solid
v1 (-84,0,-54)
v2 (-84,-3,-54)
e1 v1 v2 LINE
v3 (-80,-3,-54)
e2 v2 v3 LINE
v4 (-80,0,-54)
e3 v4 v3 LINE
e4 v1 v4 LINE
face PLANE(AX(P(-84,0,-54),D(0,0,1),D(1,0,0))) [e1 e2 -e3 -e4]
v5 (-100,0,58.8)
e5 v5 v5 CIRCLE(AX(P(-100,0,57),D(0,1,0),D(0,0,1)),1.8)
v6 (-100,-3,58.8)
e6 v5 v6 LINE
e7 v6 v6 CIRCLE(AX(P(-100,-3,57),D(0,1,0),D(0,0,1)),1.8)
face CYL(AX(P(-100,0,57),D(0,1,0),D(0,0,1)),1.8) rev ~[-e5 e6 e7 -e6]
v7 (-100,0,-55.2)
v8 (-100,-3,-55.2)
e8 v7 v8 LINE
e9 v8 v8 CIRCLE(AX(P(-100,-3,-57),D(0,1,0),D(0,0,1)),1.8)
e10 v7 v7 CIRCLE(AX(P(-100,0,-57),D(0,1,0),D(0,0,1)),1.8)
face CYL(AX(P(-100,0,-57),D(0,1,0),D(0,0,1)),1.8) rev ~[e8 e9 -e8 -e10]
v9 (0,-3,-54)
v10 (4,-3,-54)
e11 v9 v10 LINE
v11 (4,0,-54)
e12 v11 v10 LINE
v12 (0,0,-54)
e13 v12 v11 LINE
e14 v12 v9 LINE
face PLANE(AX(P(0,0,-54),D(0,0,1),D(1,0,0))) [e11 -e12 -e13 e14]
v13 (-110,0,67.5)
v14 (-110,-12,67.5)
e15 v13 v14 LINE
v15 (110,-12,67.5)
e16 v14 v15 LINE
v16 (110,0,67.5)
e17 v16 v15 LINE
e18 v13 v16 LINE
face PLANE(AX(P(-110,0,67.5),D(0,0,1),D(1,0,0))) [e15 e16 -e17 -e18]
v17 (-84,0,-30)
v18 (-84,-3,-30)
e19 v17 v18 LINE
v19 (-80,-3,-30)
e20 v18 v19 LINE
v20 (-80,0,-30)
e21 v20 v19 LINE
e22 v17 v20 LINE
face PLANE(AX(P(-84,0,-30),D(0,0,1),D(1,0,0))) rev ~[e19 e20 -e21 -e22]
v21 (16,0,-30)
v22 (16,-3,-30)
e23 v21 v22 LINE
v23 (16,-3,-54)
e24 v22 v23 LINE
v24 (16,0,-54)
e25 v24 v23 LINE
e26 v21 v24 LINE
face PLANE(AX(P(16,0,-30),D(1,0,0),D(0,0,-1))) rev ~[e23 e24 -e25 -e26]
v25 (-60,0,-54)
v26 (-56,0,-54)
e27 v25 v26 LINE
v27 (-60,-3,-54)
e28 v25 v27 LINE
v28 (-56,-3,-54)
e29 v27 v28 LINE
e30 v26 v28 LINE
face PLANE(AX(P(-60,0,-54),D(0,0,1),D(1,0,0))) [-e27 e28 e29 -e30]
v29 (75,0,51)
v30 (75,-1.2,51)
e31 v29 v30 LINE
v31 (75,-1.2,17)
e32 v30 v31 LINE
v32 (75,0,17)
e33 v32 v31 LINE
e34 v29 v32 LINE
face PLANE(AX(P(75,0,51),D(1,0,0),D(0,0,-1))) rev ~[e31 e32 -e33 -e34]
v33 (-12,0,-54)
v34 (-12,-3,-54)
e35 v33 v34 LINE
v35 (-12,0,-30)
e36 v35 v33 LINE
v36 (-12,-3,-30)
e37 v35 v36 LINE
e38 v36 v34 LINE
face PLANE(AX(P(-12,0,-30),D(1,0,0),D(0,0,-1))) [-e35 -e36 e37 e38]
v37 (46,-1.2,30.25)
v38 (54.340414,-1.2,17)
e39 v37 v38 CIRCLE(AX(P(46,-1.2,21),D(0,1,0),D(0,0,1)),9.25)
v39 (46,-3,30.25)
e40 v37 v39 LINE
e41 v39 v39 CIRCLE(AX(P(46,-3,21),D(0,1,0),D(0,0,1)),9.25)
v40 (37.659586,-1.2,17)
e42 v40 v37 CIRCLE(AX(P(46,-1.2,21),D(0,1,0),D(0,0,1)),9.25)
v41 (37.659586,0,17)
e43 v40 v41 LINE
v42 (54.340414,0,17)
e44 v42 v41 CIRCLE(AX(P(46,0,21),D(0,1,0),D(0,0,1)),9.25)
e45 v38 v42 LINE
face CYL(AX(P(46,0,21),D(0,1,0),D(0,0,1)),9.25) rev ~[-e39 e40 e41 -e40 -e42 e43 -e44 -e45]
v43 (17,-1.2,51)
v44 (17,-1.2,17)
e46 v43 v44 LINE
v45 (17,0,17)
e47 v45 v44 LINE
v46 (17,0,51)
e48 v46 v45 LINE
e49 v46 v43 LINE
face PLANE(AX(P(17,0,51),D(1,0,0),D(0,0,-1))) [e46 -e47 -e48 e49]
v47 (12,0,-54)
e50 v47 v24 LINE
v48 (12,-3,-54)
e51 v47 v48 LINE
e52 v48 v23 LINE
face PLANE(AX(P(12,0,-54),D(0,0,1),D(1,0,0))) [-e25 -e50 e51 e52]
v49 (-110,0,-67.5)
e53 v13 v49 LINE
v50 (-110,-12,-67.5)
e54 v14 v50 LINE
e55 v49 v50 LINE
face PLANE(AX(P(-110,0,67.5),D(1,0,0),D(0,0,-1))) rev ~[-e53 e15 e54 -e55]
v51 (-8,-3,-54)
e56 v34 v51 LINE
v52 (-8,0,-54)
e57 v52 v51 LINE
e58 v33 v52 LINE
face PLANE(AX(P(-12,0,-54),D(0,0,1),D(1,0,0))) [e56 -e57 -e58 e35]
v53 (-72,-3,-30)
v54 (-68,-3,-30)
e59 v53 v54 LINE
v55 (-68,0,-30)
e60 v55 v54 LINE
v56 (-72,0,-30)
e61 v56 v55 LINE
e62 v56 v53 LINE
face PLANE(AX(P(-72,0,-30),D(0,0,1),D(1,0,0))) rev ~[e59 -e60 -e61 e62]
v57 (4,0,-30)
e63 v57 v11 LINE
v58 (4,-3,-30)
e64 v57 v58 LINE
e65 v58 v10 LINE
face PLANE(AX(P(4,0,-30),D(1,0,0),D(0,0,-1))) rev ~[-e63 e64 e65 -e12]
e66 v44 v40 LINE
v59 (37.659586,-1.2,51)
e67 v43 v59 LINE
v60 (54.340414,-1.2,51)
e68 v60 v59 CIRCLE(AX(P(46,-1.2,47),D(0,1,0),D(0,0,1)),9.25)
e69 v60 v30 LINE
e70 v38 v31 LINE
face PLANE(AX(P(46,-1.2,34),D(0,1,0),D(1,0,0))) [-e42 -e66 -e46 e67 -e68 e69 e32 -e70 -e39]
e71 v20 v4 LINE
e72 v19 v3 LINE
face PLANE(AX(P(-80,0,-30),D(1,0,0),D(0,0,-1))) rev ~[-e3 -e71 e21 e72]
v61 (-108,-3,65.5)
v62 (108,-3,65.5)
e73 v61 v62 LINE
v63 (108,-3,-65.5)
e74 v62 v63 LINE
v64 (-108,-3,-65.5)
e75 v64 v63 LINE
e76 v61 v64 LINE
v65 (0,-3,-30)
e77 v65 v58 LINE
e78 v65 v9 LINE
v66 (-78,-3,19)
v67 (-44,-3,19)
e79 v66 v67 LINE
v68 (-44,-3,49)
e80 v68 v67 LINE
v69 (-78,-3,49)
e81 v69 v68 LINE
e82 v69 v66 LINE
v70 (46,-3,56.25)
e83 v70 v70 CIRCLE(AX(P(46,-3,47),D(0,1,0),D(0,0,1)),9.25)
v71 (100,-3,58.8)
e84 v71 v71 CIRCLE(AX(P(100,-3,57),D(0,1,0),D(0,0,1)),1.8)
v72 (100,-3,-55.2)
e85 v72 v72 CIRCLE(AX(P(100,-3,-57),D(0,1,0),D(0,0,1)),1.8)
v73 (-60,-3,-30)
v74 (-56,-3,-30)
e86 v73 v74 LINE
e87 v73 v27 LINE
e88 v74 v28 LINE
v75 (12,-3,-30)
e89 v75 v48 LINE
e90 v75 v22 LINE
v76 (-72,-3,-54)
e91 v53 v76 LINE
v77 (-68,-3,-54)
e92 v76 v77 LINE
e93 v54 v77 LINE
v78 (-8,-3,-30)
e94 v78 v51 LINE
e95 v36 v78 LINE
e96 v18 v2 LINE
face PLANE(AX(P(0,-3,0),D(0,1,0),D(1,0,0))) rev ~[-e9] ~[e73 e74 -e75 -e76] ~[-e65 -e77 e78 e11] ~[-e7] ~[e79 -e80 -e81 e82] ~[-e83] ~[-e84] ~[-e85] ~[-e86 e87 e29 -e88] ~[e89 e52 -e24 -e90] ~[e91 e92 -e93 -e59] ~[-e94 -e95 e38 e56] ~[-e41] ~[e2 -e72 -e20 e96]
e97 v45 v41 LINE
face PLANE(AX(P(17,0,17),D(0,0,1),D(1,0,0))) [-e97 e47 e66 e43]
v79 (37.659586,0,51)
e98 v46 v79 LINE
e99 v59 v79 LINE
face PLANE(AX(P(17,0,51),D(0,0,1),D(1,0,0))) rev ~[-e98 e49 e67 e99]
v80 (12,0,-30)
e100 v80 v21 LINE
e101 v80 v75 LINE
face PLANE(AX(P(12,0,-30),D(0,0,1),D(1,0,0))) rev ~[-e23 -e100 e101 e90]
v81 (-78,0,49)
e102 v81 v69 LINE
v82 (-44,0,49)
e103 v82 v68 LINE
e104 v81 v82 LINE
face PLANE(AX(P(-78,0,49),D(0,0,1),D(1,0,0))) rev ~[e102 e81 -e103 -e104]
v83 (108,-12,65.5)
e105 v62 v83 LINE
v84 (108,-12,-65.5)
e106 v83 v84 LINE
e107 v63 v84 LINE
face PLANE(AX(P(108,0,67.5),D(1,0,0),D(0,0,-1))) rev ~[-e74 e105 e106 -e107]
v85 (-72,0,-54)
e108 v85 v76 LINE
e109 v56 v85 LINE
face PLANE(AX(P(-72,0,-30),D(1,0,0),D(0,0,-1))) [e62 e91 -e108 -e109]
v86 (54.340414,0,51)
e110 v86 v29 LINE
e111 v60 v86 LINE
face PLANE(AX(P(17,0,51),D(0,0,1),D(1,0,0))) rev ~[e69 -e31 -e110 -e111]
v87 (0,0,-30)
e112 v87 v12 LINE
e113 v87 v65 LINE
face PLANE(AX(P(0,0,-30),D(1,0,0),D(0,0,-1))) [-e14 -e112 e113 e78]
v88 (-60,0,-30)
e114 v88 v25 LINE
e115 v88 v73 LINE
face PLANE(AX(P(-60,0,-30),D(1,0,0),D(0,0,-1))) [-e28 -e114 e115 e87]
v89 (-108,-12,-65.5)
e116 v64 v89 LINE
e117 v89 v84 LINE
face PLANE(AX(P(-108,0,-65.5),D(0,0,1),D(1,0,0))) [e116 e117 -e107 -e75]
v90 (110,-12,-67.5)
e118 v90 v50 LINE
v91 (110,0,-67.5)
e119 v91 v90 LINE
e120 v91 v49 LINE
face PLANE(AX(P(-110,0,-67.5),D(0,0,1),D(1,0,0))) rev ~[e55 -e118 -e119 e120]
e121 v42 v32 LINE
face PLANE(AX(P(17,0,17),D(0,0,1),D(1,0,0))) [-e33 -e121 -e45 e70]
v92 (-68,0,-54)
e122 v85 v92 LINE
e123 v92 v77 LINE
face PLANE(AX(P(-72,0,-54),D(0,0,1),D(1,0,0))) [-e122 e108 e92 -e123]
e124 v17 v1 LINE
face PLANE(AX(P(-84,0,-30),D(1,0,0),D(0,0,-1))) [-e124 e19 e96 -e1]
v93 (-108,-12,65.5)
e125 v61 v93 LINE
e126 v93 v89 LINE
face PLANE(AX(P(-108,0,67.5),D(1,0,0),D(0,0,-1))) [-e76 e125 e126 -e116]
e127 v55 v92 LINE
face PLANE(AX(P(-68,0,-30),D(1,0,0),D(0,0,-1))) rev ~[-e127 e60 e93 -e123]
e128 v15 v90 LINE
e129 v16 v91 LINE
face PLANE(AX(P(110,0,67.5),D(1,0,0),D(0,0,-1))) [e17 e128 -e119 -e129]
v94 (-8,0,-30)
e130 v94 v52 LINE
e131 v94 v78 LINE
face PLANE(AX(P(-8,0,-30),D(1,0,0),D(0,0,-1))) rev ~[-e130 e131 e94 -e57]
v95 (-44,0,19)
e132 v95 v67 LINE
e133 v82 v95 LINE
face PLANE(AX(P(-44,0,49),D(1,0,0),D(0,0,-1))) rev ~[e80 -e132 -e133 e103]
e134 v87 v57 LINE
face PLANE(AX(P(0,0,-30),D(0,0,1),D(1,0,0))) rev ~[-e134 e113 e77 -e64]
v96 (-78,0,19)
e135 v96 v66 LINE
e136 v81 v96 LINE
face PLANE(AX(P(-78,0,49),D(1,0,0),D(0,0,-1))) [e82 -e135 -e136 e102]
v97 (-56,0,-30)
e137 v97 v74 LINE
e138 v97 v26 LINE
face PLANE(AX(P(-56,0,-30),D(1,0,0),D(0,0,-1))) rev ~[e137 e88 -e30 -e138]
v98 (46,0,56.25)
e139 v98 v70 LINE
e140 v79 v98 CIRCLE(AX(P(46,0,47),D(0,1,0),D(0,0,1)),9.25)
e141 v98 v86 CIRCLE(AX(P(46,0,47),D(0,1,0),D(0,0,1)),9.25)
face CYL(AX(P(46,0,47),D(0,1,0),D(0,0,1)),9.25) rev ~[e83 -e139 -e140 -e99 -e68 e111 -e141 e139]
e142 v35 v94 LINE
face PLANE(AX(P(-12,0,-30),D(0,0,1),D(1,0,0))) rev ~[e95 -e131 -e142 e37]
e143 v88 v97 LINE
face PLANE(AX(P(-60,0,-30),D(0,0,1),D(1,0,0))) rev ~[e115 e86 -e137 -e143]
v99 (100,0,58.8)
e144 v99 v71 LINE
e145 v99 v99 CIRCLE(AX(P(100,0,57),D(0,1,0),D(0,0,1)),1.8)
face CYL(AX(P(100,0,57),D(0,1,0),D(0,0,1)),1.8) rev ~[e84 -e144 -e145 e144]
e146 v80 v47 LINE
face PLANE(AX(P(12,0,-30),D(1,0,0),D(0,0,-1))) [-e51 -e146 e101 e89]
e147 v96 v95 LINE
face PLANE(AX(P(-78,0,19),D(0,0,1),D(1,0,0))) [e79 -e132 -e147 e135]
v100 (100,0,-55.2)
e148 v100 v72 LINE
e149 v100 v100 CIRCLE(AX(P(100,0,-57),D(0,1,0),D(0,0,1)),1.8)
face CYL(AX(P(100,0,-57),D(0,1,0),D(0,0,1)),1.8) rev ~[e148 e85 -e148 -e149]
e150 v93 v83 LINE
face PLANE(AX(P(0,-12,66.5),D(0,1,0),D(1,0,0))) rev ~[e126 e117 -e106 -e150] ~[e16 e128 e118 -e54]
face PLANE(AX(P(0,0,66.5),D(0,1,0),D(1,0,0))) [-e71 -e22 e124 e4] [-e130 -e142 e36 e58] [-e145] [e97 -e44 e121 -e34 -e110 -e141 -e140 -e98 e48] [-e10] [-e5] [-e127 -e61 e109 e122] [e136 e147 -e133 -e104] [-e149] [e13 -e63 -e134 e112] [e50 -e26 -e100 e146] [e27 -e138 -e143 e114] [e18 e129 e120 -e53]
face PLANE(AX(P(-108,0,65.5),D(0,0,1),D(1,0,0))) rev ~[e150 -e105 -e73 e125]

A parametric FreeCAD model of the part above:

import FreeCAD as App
import Part
import Sketcher
Q = App.Units.Quantity

doc = App.newDocument("Part")
body = doc.addObject("PartDesign::Body", "Body")

sketch1 = doc.addObject("Sketcher::SketchObject", "Sketch")
body.addObject(sketch1)
sketch1.AttachmentSupport = (doc.XZ_Plane, [""])
sketch1.MapMode = "FlatFace"
sketch1.addGeometry(Part.LineSegment(App.Vector(-110, -68, 0), App.Vector(-110, 68, 0)), False)
sketch1.addGeometry(Part.LineSegment(App.Vector(-110, 68, 0), App.Vector(110, 68, 0)), False)
sketch1.addGeometry(Part.LineSegment(App.Vector(110, 68, 0), App.Vector(110, -68, 0)), False)
sketch1.addGeometry(Part.LineSegment(App.Vector(110, -68, 0), App.Vector(-110, -68, 0)), False)
sketch1.addConstraint(Sketcher.Constraint("Coincident", 0, 2, 1, 1))
sketch1.addConstraint(Sketcher.Constraint("Coincident", 1, 2, 2, 1))
sketch1.addConstraint(Sketcher.Constraint("Coincident", 2, 2, 3, 1))
sketch1.addConstraint(Sketcher.Constraint("Coincident", 3, 2, 0, 1))
sketch1.addConstraint(Sketcher.Constraint("Vertical", 0))
sketch1.addConstraint(Sketcher.Constraint("Horizontal", 1))
sketch1.addConstraint(Sketcher.Constraint("Vertical", 2))
sketch1.addConstraint(Sketcher.Constraint("Horizontal", 3))
sketch1.addConstraint(Sketcher.Constraint("Symmetric", 0, 2, 2, 2, -1, 1))
sketch1.addConstraint(Sketcher.Constraint("DistanceX", 1, 1, 1, 2, Q("220 mm")))
sketch1.addConstraint(Sketcher.Constraint("DistanceY", 0, 1, 0, 2, Q("135 mm")))
pad1 = doc.addObject("PartDesign::Pad", "Pad")
body.addObject(pad1)
pad1.Profile = sketch1
pad1.Length = 3

sketch2 = doc.addObject("Sketcher::SketchObject", "Sketch001")
body.addObject(sketch2)
sketch2.AttachmentSupport = (doc.XZ_Plane, [""])
sketch2.MapMode = "FlatFace"
sketch2.addGeometry(Part.LineSegment(App.Vector(-108, -67.5, 0), App.Vector(-108, -65.5, 0)), False)
sketch2.addGeometry(Part.LineSegment(App.Vector(-108, -65.5, 0), App.Vector(108, -65.5, 0)), False)
sketch2.addGeometry(Part.LineSegment(App.Vector(108, -65.5, 0), App.Vector(108, -67.5, 0)), False)
sketch2.addGeometry(Part.LineSegment(App.Vector(108, -67.5, 0), App.Vector(-108, -67.5, 0)), False)
sketch2.addConstraint(Sketcher.Constraint("Coincident", 0, 2, 1, 1))
sketch2.addConstraint(Sketcher.Constraint("Coincident", 1, 2, 2, 1))
sketch2.addConstraint(Sketcher.Constraint("Coincident", 2, 2, 3, 1))
sketch2.addConstraint(Sketcher.Constraint("Coincident", 3, 2, 0, 1))
sketch2.addConstraint(Sketcher.Constraint("Vertical", 0))
sketch2.addConstraint(Sketcher.Constraint("Horizontal", 1))
sketch2.addConstraint(Sketcher.Constraint("Vertical", 2))
sketch2.addConstraint(Sketcher.Constraint("Horizontal", 3))
sketch2.addConstraint(Sketcher.Constraint("DistanceX", 1, 1, 1, 2, Q("216 mm")))
sketch2.addConstraint(Sketcher.Constraint("DistanceY", 0, 1, 0, 2, Q("2 mm")))
sketch2.addConstraint(Sketcher.Constraint("DistanceX", 0, 2, -1, 1, Q("108 mm")))
sketch2.addConstraint(Sketcher.Constraint("DistanceY", 0, 2, -1, 1, Q("65.5 mm")))
pad2 = doc.addObject("PartDesign::Pad", "Pad001")
body.addObject(pad2)
pad2.Profile = sketch2
pad2.Length = 12

sketch3 = doc.addObject("Sketcher::SketchObject", "Sketch002")
body.addObject(sketch3)
sketch3.AttachmentSupport = (doc.XZ_Plane, [""])
sketch3.MapMode = "FlatFace"
sketch3.addGeometry(Part.LineSegment(App.Vector(-108, 65.5, 0), App.Vector(-108, 67.5, 0)), False)
sketch3.addGeometry(Part.LineSegment(App.Vector(-108, 67.5, 0), App.Vector(108, 67.5, 0)), False)
sketch3.addGeometry(Part.LineSegment(App.Vector(108, 67.5, 0), App.Vector(108, 65.5, 0)), False)
sketch3.addGeometry(Part.LineSegment(App.Vector(108, 65.5, 0), App.Vector(-108, 65.5, 0)), False)
sketch3.addConstraint(Sketcher.Constraint("Coincident", 0, 2, 1, 1))
sketch3.addConstraint(Sketcher.Constraint("Coincident", 1, 2, 2, 1))
sketch3.addConstraint(Sketcher.Constraint("Coincident", 2, 2, 3, 1))
sketch3.addConstraint(Sketcher.Constraint("Coincident", 3, 2, 0, 1))
sketch3.addConstraint(Sketcher.Constraint("Vertical", 0))
sketch3.addConstraint(Sketcher.Constraint("Horizontal", 1))
sketch3.addConstraint(Sketcher.Constraint("Vertical", 2))
sketch3.addConstraint(Sketcher.Constraint("Horizontal", 3))
sketch3.addConstraint(Sketcher.Constraint("DistanceX", 1, 1, 1, 2, Q("216 mm")))
sketch3.addConstraint(Sketcher.Constraint("DistanceY", 0, 1, 0, 2, Q("2 mm")))
sketch3.addConstraint(Sketcher.Constraint("DistanceX", 0, 2, -1, 1, Q("108 mm")))
sketch3.addConstraint(Sketcher.Constraint("DistanceY", -1, 1, 0, 2, Q("67.5 mm")))
pad3 = doc.addObject("PartDesign::Pad", "Pad002")
body.addObject(pad3)
pad3.Profile = sketch3
pad3.Length = 12

sketch4 = doc.addObject("Sketcher::SketchObject", "Sketch003")
body.addObject(sketch4)
sketch4.AttachmentSupport = (doc.XZ_Plane, [""])
sketch4.MapMode = "FlatFace"
sketch4.addGeometry(Part.LineSegment(App.Vector(-110, -67.5, 0), App.Vector(-110, 67.5, 0)), False)
sketch4.addGeometry(Part.LineSegment(App.Vector(-110, 67.5, 0), App.Vector(-108, 67.5, 0)), False)
sketch4.addGeometry(Part.LineSegment(App.Vector(-108, 67.5, 0), App.Vector(-108, -67.5, 0)), False)
sketch4.addGeometry(Part.LineSegment(App.Vector(-108, -67.5, 0), App.Vector(-110, -67.5, 0)), False)
sketch4.addConstraint(Sketcher.Constraint("Coincident", 0, 2, 1, 1))
sketch4.addConstraint(Sketcher.Constraint("Coincident", 1, 2, 2, 1))
sketch4.addConstraint(Sketcher.Constraint("Coincident", 2, 2, 3, 1))
sketch4.addConstraint(Sketcher.Constraint("Coincident", 3, 2, 0, 1))
sketch4.addConstraint(Sketcher.Constraint("Vertical", 0))
sketch4.addConstraint(Sketcher.Constraint("Horizontal", 1))
sketch4.addConstraint(Sketcher.Constraint("Vertical", 2))
sketch4.addConstraint(Sketcher.Constraint("Horizontal", 3))
sketch4.addConstraint(Sketcher.Constraint("DistanceX", 1, 1, 1, 2, Q("2 mm")))
sketch4.addConstraint(Sketcher.Constraint("DistanceY", 0, 1, 0, 2, Q("135 mm")))
sketch4.addConstraint(Sketcher.Constraint("DistanceX", 0, 2, -1, 1, Q("110 mm")))
sketch4.addConstraint(Sketcher.Constraint("DistanceY", -1, 1, 0, 2, Q("67.5 mm")))
pad4 = doc.addObject("PartDesign::Pad", "Pad003")
body.addObject(pad4)
pad4.Profile = sketch4
pad4.Length = 12

sketch5 = doc.addObject("Sketcher::SketchObject", "Sketch004")
body.addObject(sketch5)
sketch5.AttachmentSupport = (doc.XZ_Plane, [""])
sketch5.MapMode = "FlatFace"
sketch5.addGeometry(Part.LineSegment(App.Vector(108, -67.5, 0), App.Vector(108, 67.5, 0)), False)
sketch5.addGeometry(Part.LineSegment(App.Vector(108, 67.5, 0), App.Vector(110, 67.5, 0)), False)
sketch5.addGeometry(Part.LineSegment(App.Vector(110, 67.5, 0), App.Vector(110, -67.5, 0)), False)
sketch5.addGeometry(Part.LineSegment(App.Vector(110, -67.5, 0), App.Vector(108, -67.5, 0)), False)
sketch5.addConstraint(Sketcher.Constraint("Coincident", 0, 2, 1, 1))
sketch5.addConstraint(Sketcher.Constraint("Coincident", 1, 2, 2, 1))
sketch5.addConstraint(Sketcher.Constraint("Coincident", 2, 2, 3, 1))
sketch5.addConstraint(Sketcher.Constraint("Coincident", 3, 2, 0, 1))
sketch5.addConstraint(Sketcher.Constraint("Vertical", 0))
sketch5.addConstraint(Sketcher.Constraint("Horizontal", 1))
sketch5.addConstraint(Sketcher.Constraint("Vertical", 2))
sketch5.addConstraint(Sketcher.Constraint("Horizontal", 3))
sketch5.addConstraint(Sketcher.Constraint("DistanceX", 1, 1, 1, 2, Q("2 mm")))
sketch5.addConstraint(Sketcher.Constraint("DistanceY", 0, 1, 0, 2, Q("135 mm")))
sketch5.addConstraint(Sketcher.Constraint("DistanceX", -1, 1, 0, 2, Q("108 mm")))
sketch5.addConstraint(Sketcher.Constraint("DistanceY", -1, 1, 0, 2, Q("67.5 mm")))
pad5 = doc.addObject("PartDesign::Pad", "Pad004")
body.addObject(pad5)
pad5.Profile = sketch5
pad5.Length = 12

sketch6 = doc.addObject("Sketcher::SketchObject", "Sketch005")
body.addObject(sketch6)
sketch6.AttachmentSupport = (doc.XZ_Plane, [""])
sketch6.MapMode = "FlatFace"
sketch6.addGeometry(Part.Circle(App.Vector(-100, 57, 0), App.Vector(0, 0, 1), 1.8), False)
sketch6.addConstraint(Sketcher.Constraint("Diameter", 0, Q("3.6 mm")))
sketch6.addConstraint(Sketcher.Constraint("DistanceX", 0, 3, -1, 1, Q("100 mm")))
sketch6.addConstraint(Sketcher.Constraint("DistanceY", -1, 1, 0, 3, Q("57 mm")))
pocket1 = doc.addObject("PartDesign::Pocket", "Pocket")
body.addObject(pocket1)
pocket1.Profile = sketch6
pocket1.Length = 16
pocket1.Reversed = True

sketch7 = doc.addObject("Sketcher::SketchObject", "Sketch006")
body.addObject(sketch7)
sketch7.AttachmentSupport = (doc.XZ_Plane, [""])
sketch7.MapMode = "FlatFace"
sketch7.addGeometry(Part.Circle(App.Vector(100, 57, 0), App.Vector(0, 0, 1), 1.8), False)
sketch7.addConstraint(Sketcher.Constraint("Diameter", 0, Q("3.6 mm")))
sketch7.addConstraint(Sketcher.Constraint("DistanceX", -1, 1, 0, 3, Q("100 mm")))
sketch7.addConstraint(Sketcher.Constraint("DistanceY", -1, 1, 0, 3, Q("57 mm")))
pocket2 = doc.addObject("PartDesign::Pocket", "Pocket001")
body.addObject(pocket2)
pocket2.Profile = sketch7
pocket2.Length = 16
pocket2.Reversed = True

sketch8 = doc.addObject("Sketcher::SketchObject", "Sketch007")
body.addObject(sketch8)
sketch8.AttachmentSupport = (doc.XZ_Plane, [""])
sketch8.MapMode = "FlatFace"
sketch8.addGeometry(Part.Circle(App.Vector(-100, -57, 0), App.Vector(0, 0, 1), 1.8), False)
sketch8.addConstraint(Sketcher.Constraint("Diameter", 0, Q("3.6 mm")))
sketch8.addConstraint(Sketcher.Constraint("DistanceX", 0, 3, -1, 1, Q("100 mm")))
sketch8.addConstraint(Sketcher.Constraint("DistanceY", 0, 3, -1, 1, Q("57 mm")))
pocket3 = doc.addObject("PartDesign::Pocket", "Pocket002")
body.addObject(pocket3)
pocket3.Profile = sketch8
pocket3.Length = 16
pocket3.Reversed = True

sketch9 = doc.addObject("Sketcher::SketchObject", "Sketch008")
body.addObject(sketch9)
sketch9.AttachmentSupport = (doc.XZ_Plane, [""])
sketch9.MapMode = "FlatFace"
sketch9.addGeometry(Part.Circle(App.Vector(100, -57, 0), App.Vector(0, 0, 1), 1.8), False)
sketch9.addConstraint(Sketcher.Constraint("Diameter", 0, Q("3.6 mm")))
sketch9.addConstraint(Sketcher.Constraint("DistanceX", -1, 1, 0, 3, Q("100 mm")))
sketch9.addConstraint(Sketcher.Constraint("DistanceY", 0, 3, -1, 1, Q("57 mm")))
pocket4 = doc.addObject("PartDesign::Pocket", "Pocket003")
body.addObject(pocket4)
pocket4.Profile = sketch9
pocket4.Length = 16
pocket4.Reversed = True

sketch10 = doc.addObject("Sketcher::SketchObject", "Sketch009")
body.addObject(sketch10)
sketch10.AttachmentSupport = (doc.XZ_Plane, [""])
sketch10.MapMode = "FlatFace"
sketch10.addGeometry(Part.Circle(App.Vector(-61, 34, 0), App.Vector(0, 0, 1), 9), False)
sketch10.addConstraint(Sketcher.Constraint("Diameter", 0, Q("18 mm")))
sketch10.addConstraint(Sketcher.Constraint("DistanceX", 0, 3, -1, 1, Q("61 mm")))
sketch10.addConstraint(Sketcher.Constraint("DistanceY", -1, 1, 0, 3, Q("34 mm")))
pocket5 = doc.addObject("PartDesign::Pocket", "Pocket004")
body.addObject(pocket5)
pocket5.Profile = sketch10
pocket5.Length = 4
pocket5.Reversed = True

sketch11 = doc.addObject("Sketcher::SketchObject", "Sketch010")
body.addObject(sketch11)
sketch11.AttachmentSupport = (doc.XZ_Plane, [""])
sketch11.MapMode = "FlatFace"
sketch11.addGeometry(Part.LineSegment(App.Vector(-78, 19, 0), App.Vector(-78, 49, 0)), False)
sketch11.addGeometry(Part.LineSegment(App.Vector(-78, 49, 0), App.Vector(-44, 49, 0)), False)
sketch11.addGeometry(Part.LineSegment(App.Vector(-44, 49, 0), App.Vector(-44, 19, 0)), False)
sketch11.addGeometry(Part.LineSegment(App.Vector(-44, 19, 0), App.Vector(-78, 19, 0)), False)
sketch11.addConstraint(Sketcher.Constraint("Coincident", 0, 2, 1, 1))
sketch11.addConstraint(Sketcher.Constraint("Coincident", 1, 2, 2, 1))
sketch11.addConstraint(Sketcher.Constraint("Coincident", 2, 2, 3, 1))
sketch11.addConstraint(Sketcher.Constraint("Coincident", 3, 2, 0, 1))
sketch11.addConstraint(Sketcher.Constraint("Vertical", 0))
sketch11.addConstraint(Sketcher.Constraint("Horizontal", 1))
sketch11.addConstraint(Sketcher.Constraint("Vertical", 2))
sketch11.addConstraint(Sketcher.Constraint("Horizontal", 3))
sketch11.addConstraint(Sketcher.Constraint("DistanceX", 1, 1, 1, 2, Q("34 mm")))
sketch11.addConstraint(Sketcher.Constraint("DistanceY", 0, 1, 0, 2, Q("30 mm")))
sketch11.addConstraint(Sketcher.Constraint("DistanceX", 0, 2, -1, 1, Q("78 mm")))
sketch11.addConstraint(Sketcher.Constraint("DistanceY", -1, 1, 0, 2, Q("49 mm")))
pocket6 = doc.addObject("PartDesign::Pocket", "Pocket005")
body.addObject(pocket6)
pocket6.Profile = sketch11
pocket6.Length = 4
pocket6.Reversed = True

sketch12 = doc.addObject("Sketcher::SketchObject", "Sketch011")
body.addObject(sketch12)
sketch12.AttachmentSupport = (doc.XZ_Plane, [""])
sketch12.MapMode = "FlatFace"
sketch12.addGeometry(Part.Circle(App.Vector(46, 47, 0), App.Vector(0, 0, 1), 9), False)
sketch12.addConstraint(Sketcher.Constraint("Diameter", 0, Q("18.5 mm")))
sketch12.addConstraint(Sketcher.Constraint("DistanceX", -1, 1, 0, 3, Q("46 mm")))
sketch12.addConstraint(Sketcher.Constraint("DistanceY", -1, 1, 0, 3, Q("47 mm")))
pocket7 = doc.addObject("PartDesign::Pocket", "Pocket006")
body.addObject(pocket7)
pocket7.Profile = sketch12
pocket7.Length = 4
pocket7.Reversed = True

sketch13 = doc.addObject("Sketcher::SketchObject", "Sketch012")
body.addObject(sketch13)
sketch13.AttachmentSupport = (doc.XZ_Plane, [""])
sketch13.MapMode = "FlatFace"
sketch13.addGeometry(Part.Circle(App.Vector(46, 21, 0), App.Vector(0, 0, 1), 9), False)
sketch13.addConstraint(Sketcher.Constraint("Diameter", 0, Q("18.5 mm")))
sketch13.addConstraint(Sketcher.Constraint("DistanceX", -1, 1, 0, 3, Q("46 mm")))
sketch13.addConstraint(Sketcher.Constraint("DistanceY", -1, 1, 0, 3, Q("21 mm")))
pocket8 = doc.addObject("PartDesign::Pocket", "Pocket007")
body.addObject(pocket8)
pocket8.Profile = sketch13
pocket8.Length = 4
pocket8.Reversed = True

sketch14 = doc.addObject("Sketcher::SketchObject", "Sketch013")
body.addObject(sketch14)
sketch14.AttachmentSupport = (doc.XZ_Plane, [""])
sketch14.MapMode = "FlatFace"
sketch14.addGeometry(Part.LineSegment(App.Vector(17, 17, 0), App.Vector(17, 51, 0)), False)
sketch14.addGeometry(Part.LineSegment(App.Vector(17, 51, 0), App.Vector(75, 51, 0)), False)
sketch14.addGeometry(Part.LineSegment(App.Vector(75, 51, 0), App.Vector(75, 17, 0)), False)
sketch14.addGeometry(Part.LineSegment(App.Vector(75, 17, 0), App.Vector(17, 17, 0)), False)
sketch14.addConstraint(Sketcher.Constraint("Coincident", 0, 2, 1, 1))
sketch14.addConstraint(Sketcher.Constraint("Coincident", 1, 2, 2, 1))
sketch14.addConstraint(Sketcher.Constraint("Coincident", 2, 2, 3, 1))
sketch14.addConstraint(Sketcher.Constraint("Coincident", 3, 2, 0, 1))
sketch14.addConstraint(Sketcher.Constraint("Vertical", 0))
sketch14.addConstraint(Sketcher.Constraint("Horizontal", 1))
sketch14.addConstraint(Sketcher.Constraint("Vertical", 2))
sketch14.addConstraint(Sketcher.Constraint("Horizontal", 3))
sketch14.addConstraint(Sketcher.Constraint("DistanceX", 1, 1, 1, 2, Q("58 mm")))
sketch14.addConstraint(Sketcher.Constraint("DistanceY", 0, 1, 0, 2, Q("34 mm")))
sketch14.addConstraint(Sketcher.Constraint("DistanceX", -1, 1, 0, 2, Q("17 mm")))
sketch14.addConstraint(Sketcher.Constraint("DistanceY", -1, 1, 0, 2, Q("51 mm")))
pocket9 = doc.addObject("PartDesign::Pocket", "Pocket008")
body.addObject(pocket9)
pocket9.Profile = sketch14
pocket9.Length = 1.2
pocket9.Reversed = True

sketch15 = doc.addObject("Sketcher::SketchObject", "Sketch014")
body.addObject(sketch15)
sketch15.AttachmentSupport = (doc.XZ_Plane, [""])
sketch15.MapMode = "FlatFace"
sketch15.addGeometry(Part.LineSegment(App.Vector(-84, -54, 0), App.Vector(-84, -30, 0)), False)
sketch15.addGeometry(Part.LineSegment(App.Vector(-84, -30, 0), App.Vector(-80, -30, 0)), False)
sketch15.addGeometry(Part.LineSegment(App.Vector(-80, -30, 0), App.Vector(-80, -54, 0)), False)
sketch15.addGeometry(Part.LineSegment(App.Vector(-80, -54, 0), App.Vector(-84, -54, 0)), False)
sketch15.addConstraint(Sketcher.Constraint("Coincident", 0, 2, 1, 1))
sketch15.addConstraint(Sketcher.Constraint("Coincident", 1, 2, 2, 1))
sketch15.addConstraint(Sketcher.Constraint("Coincident", 2, 2, 3, 1))
sketch15.addConstraint(Sketcher.Constraint("Coincident", 3, 2, 0, 1))
sketch15.addConstraint(Sketcher.Constraint("Vertical", 0))
sketch15.addConstraint(Sketcher.Constraint("Horizontal", 1))
sketch15.addConstraint(Sketcher.Constraint("Vertical", 2))
sketch15.addConstraint(Sketcher.Constraint("Horizontal", 3))
sketch15.addConstraint(Sketcher.Constraint("DistanceX", 1, 1, 1, 2, Q("4 mm")))
sketch15.addConstraint(Sketcher.Constraint("DistanceY", 0, 1, 0, 2, Q("24 mm")))
sketch15.addConstraint(Sketcher.Constraint("DistanceX", 0, 2, -1, 1, Q("84 mm")))
sketch15.addConstraint(Sketcher.Constraint("DistanceY", 0, 2, -1, 1, Q("30 mm")))
pocket10 = doc.addObject("PartDesign::Pocket", "Pocket009")
body.addObject(pocket10)
pocket10.Profile = sketch15
pocket10.Length = 4
pocket10.Reversed = True

sketch16 = doc.addObject("Sketcher::SketchObject", "Sketch015")
body.addObject(sketch16)
sketch16.AttachmentSupport = (doc.XZ_Plane, [""])
sketch16.MapMode = "FlatFace"
sketch16.addGeometry(Part.LineSegment(App.Vector(-72, -54, 0), App.Vector(-72, -30, 0)), False)
sketch16.addGeometry(Part.LineSegment(App.Vector(-72, -30, 0), App.Vector(-68, -30, 0)), False)
sketch16.addGeometry(Part.LineSegment(App.Vector(-68, -30, 0), App.Vector(-68, -54, 0)), False)
sketch16.addGeometry(Part.LineSegment(App.Vector(-68, -54, 0), App.Vector(-72, -54, 0)), False)
sketch16.addConstraint(Sketcher.Constraint("Coincident", 0, 2, 1, 1))
sketch16.addConstraint(Sketcher.Constraint("Coincident", 1, 2, 2, 1))
sketch16.addConstraint(Sketcher.Constraint("Coincident", 2, 2, 3, 1))
sketch16.addConstraint(Sketcher.Constraint("Coincident", 3, 2, 0, 1))
sketch16.addConstraint(Sketcher.Constraint("Vertical", 0))
sketch16.addConstraint(Sketcher.Constraint("Horizontal", 1))
sketch16.addConstraint(Sketcher.Constraint("Vertical", 2))
sketch16.addConstraint(Sketcher.Constraint("Horizontal", 3))
sketch16.addConstraint(Sketcher.Constraint("DistanceX", 1, 1, 1, 2, Q("4 mm")))
sketch16.addConstraint(Sketcher.Constraint("DistanceY", 0, 1, 0, 2, Q("24 mm")))
sketch16.addConstraint(Sketcher.Constraint("DistanceX", 0, 2, -1, 1, Q("72 mm")))
sketch16.addConstraint(Sketcher.Constraint("DistanceY", 0, 2, -1, 1, Q("30 mm")))
pocket11 = doc.addObject("PartDesign::Pocket", "Pocket010")
body.addObject(pocket11)
pocket11.Profile = sketch16
pocket11.Length = 4
pocket11.Reversed = True

sketch17 = doc.addObject("Sketcher::SketchObject", "Sketch016")
body.addObject(sketch17)
sketch17.AttachmentSupport = (doc.XZ_Plane, [""])
sketch17.MapMode = "FlatFace"
sketch17.addGeometry(Part.LineSegment(App.Vector(-60, -54, 0), App.Vector(-60, -30, 0)), False)
sketch17.addGeometry(Part.LineSegment(App.Vector(-60, -30, 0), App.Vector(-56, -30, 0)), False)
sketch17.addGeometry(Part.LineSegment(App.Vector(-56, -30, 0), App.Vector(-56, -54, 0)), False)
sketch17.addGeometry(Part.LineSegment(App.Vector(-56, -54, 0), App.Vector(-60, -54, 0)), False)
sketch17.addConstraint(Sketcher.Constraint("Coincident", 0, 2, 1, 1))
sketch17.addConstraint(Sketcher.Constraint("Coincident", 1, 2, 2, 1))
sketch17.addConstraint(Sketcher.Constraint("Coincident", 2, 2, 3, 1))
sketch17.addConstraint(Sketcher.Constraint("Coincident", 3, 2, 0, 1))
sketch17.addConstraint(Sketcher.Constraint("Vertical", 0))
sketch17.addConstraint(Sketcher.Constraint("Horizontal", 1))
sketch17.addConstraint(Sketcher.Constraint("Vertical", 2))
sketch17.addConstraint(Sketcher.Constraint("Horizontal", 3))
sketch17.addConstraint(Sketcher.Constraint("DistanceX", 1, 1, 1, 2, Q("4 mm")))
sketch17.addConstraint(Sketcher.Constraint("DistanceY", 0, 1, 0, 2, Q("24 mm")))
sketch17.addConstraint(Sketcher.Constraint("DistanceX", 0, 2, -1, 1, Q("60 mm")))
sketch17.addConstraint(Sketcher.Constraint("DistanceY", 0, 2, -1, 1, Q("30 mm")))
pocket12 = doc.addObject("PartDesign::Pocket", "Pocket011")
body.addObject(pocket12)
pocket12.Profile = sketch17
pocket12.Length = 4
pocket12.Reversed = True

sketch18 = doc.addObject("Sketcher::SketchObject", "Sketch017")
body.addObject(sketch18)
sketch18.AttachmentSupport = (doc.XZ_Plane, [""])
sketch18.MapMode = "FlatFace"
sketch18.addGeometry(Part.LineSegment(App.Vector(-12, -54, 0), App.Vector(-12, -30, 0)), False)
sketch18.addGeometry(Part.LineSegment(App.Vector(-12, -30, 0), App.Vector(-8, -30, 0)), False)
sketch18.addGeometry(Part.LineSegment(App.Vector(-8, -30, 0), App.Vector(-8, -54, 0)), False)
sketch18.addGeometry(Part.LineSegment(App.Vector(-8, -54, 0), App.Vector(-12, -54, 0)), False)
sketch18.addConstraint(Sketcher.Constraint("Coincident", 0, 2, 1, 1))
sketch18.addConstraint(Sketcher.Constraint("Coincident", 1, 2, 2, 1))
sketch18.addConstraint(Sketcher.Constraint("Coincident", 2, 2, 3, 1))
sketch18.addConstraint(Sketcher.Constraint("Coincident", 3, 2, 0, 1))
sketch18.addConstraint(Sketcher.Constraint("Vertical", 0))
sketch18.addConstraint(Sketcher.Constraint("Horizontal", 1))
sketch18.addConstraint(Sketcher.Constraint("Vertical", 2))
sketch18.addConstraint(Sketcher.Constraint("Horizontal", 3))
sketch18.addConstraint(Sketcher.Constraint("DistanceX", 1, 1, 1, 2, Q("4 mm")))
sketch18.addConstraint(Sketcher.Constraint("DistanceY", 0, 1, 0, 2, Q("24 mm")))
sketch18.addConstraint(Sketcher.Constraint("DistanceX", 0, 2, -1, 1, Q("12 mm")))
sketch18.addConstraint(Sketcher.Constraint("DistanceY", 0, 2, -1, 1, Q("30 mm")))
pocket13 = doc.addObject("PartDesign::Pocket", "Pocket012")
body.addObject(pocket13)
pocket13.Profile = sketch18
pocket13.Length = 4
pocket13.Reversed = True

sketch19 = doc.addObject("Sketcher::SketchObject", "Sketch018")
body.addObject(sketch19)
sketch19.AttachmentSupport = (doc.XZ_Plane, [""])
sketch19.MapMode = "FlatFace"
sketch19.addGeometry(Part.LineSegment(App.Vector(0, -54, 0), App.Vector(0, -30, 0)), False)
sketch19.addGeometry(Part.LineSegment(App.Vector(0, -30, 0), App.Vector(4, -30, 0)), False)
sketch19.addGeometry(Part.LineSegment(App.Vector(4, -30, 0), App.Vector(4, -54, 0)), False)
sketch19.addGeometry(Part.LineSegment(App.Vector(4, -54, 0), App.Vector(0, -54, 0)), False)
sketch19.addConstraint(Sketcher.Constraint("Coincident", 0, 2, 1, 1))
sketch19.addConstraint(Sketcher.Constraint("Coincident", 1, 2, 2, 1))
sketch19.addConstraint(Sketcher.Constraint("Coincident", 2, 2, 3, 1))
sketch19.addConstraint(Sketcher.Constraint("Coincident", 3, 2, 0, 1))
sketch19.addConstraint(Sketcher.Constraint("Vertical", 0))
sketch19.addConstraint(Sketcher.Constraint("Horizontal", 1))
sketch19.addConstraint(Sketcher.Constraint("Vertical", 2))
sketch19.addConstraint(Sketcher.Constraint("Horizontal", 3))
sketch19.addConstraint(Sketcher.Constraint("PointOnObject", 0, 2, -2))
sketch19.addConstraint(Sketcher.Constraint("DistanceX", 1, 1, 1, 2, Q("4 mm")))
sketch19.addConstraint(Sketcher.Constraint("DistanceY", 0, 1, 0, 2, Q("24 mm")))
sketch19.addConstraint(Sketcher.Constraint("DistanceY", 0, 2, -1, 1, Q("30 mm")))
pocket14 = doc.addObject("PartDesign::Pocket", "Pocket013")
body.addObject(pocket14)
pocket14.Profile = sketch19
pocket14.Length = 4
pocket14.Reversed = True

sketch20 = doc.addObject("Sketcher::SketchObject", "Sketch019")
body.addObject(sketch20)
sketch20.AttachmentSupport = (doc.XZ_Plane, [""])
sketch20.MapMode = "FlatFace"
sketch20.addGeometry(Part.LineSegment(App.Vector(12, -54, 0), App.Vector(12, -30, 0)), False)
sketch20.addGeometry(Part.LineSegment(App.Vector(12, -30, 0), App.Vector(16, -30, 0)), False)
sketch20.addGeometry(Part.LineSegment(App.Vector(16, -30, 0), App.Vector(16, -54, 0)), False)
sketch20.addGeometry(Part.LineSegment(App.Vector(16, -54, 0), App.Vector(12, -54, 0)), False)
sketch20.addConstraint(Sketcher.Constraint("Coincident", 0, 2, 1, 1))
sketch20.addConstraint(Sketcher.Constraint("Coincident", 1, 2, 2, 1))
sketch20.addConstraint(Sketcher.Constraint("Coincident", 2, 2, 3, 1))
sketch20.addConstraint(Sketcher.Constraint("Coincident", 3, 2, 0, 1))
sketch20.addConstraint(Sketcher.Constraint("Vertical", 0))
sketch20.addConstraint(Sketcher.Constraint("Horizontal", 1))
sketch20.addConstraint(Sketcher.Constraint("Vertical", 2))
sketch20.addConstraint(Sketcher.Constraint("Horizontal", 3))
sketch20.addConstraint(Sketcher.Constraint("DistanceX", 1, 1, 1, 2, Q("4 mm")))
sketch20.addConstraint(Sketcher.Constraint("DistanceY", 0, 1, 0, 2, Q("24 mm")))
sketch20.addConstraint(Sketcher.Constraint("DistanceX", -1, 1, 0, 2, Q("12 mm")))
sketch20.addConstraint(Sketcher.Constraint("DistanceY", 0, 2, -1, 1, Q("30 mm")))
pocket15 = doc.addObject("PartDesign::Pocket", "Pocket014")
body.addObject(pocket15)
pocket15.Profile = sketch20
pocket15.Length = 4
pocket15.Reversed = True

doc.recompute()
